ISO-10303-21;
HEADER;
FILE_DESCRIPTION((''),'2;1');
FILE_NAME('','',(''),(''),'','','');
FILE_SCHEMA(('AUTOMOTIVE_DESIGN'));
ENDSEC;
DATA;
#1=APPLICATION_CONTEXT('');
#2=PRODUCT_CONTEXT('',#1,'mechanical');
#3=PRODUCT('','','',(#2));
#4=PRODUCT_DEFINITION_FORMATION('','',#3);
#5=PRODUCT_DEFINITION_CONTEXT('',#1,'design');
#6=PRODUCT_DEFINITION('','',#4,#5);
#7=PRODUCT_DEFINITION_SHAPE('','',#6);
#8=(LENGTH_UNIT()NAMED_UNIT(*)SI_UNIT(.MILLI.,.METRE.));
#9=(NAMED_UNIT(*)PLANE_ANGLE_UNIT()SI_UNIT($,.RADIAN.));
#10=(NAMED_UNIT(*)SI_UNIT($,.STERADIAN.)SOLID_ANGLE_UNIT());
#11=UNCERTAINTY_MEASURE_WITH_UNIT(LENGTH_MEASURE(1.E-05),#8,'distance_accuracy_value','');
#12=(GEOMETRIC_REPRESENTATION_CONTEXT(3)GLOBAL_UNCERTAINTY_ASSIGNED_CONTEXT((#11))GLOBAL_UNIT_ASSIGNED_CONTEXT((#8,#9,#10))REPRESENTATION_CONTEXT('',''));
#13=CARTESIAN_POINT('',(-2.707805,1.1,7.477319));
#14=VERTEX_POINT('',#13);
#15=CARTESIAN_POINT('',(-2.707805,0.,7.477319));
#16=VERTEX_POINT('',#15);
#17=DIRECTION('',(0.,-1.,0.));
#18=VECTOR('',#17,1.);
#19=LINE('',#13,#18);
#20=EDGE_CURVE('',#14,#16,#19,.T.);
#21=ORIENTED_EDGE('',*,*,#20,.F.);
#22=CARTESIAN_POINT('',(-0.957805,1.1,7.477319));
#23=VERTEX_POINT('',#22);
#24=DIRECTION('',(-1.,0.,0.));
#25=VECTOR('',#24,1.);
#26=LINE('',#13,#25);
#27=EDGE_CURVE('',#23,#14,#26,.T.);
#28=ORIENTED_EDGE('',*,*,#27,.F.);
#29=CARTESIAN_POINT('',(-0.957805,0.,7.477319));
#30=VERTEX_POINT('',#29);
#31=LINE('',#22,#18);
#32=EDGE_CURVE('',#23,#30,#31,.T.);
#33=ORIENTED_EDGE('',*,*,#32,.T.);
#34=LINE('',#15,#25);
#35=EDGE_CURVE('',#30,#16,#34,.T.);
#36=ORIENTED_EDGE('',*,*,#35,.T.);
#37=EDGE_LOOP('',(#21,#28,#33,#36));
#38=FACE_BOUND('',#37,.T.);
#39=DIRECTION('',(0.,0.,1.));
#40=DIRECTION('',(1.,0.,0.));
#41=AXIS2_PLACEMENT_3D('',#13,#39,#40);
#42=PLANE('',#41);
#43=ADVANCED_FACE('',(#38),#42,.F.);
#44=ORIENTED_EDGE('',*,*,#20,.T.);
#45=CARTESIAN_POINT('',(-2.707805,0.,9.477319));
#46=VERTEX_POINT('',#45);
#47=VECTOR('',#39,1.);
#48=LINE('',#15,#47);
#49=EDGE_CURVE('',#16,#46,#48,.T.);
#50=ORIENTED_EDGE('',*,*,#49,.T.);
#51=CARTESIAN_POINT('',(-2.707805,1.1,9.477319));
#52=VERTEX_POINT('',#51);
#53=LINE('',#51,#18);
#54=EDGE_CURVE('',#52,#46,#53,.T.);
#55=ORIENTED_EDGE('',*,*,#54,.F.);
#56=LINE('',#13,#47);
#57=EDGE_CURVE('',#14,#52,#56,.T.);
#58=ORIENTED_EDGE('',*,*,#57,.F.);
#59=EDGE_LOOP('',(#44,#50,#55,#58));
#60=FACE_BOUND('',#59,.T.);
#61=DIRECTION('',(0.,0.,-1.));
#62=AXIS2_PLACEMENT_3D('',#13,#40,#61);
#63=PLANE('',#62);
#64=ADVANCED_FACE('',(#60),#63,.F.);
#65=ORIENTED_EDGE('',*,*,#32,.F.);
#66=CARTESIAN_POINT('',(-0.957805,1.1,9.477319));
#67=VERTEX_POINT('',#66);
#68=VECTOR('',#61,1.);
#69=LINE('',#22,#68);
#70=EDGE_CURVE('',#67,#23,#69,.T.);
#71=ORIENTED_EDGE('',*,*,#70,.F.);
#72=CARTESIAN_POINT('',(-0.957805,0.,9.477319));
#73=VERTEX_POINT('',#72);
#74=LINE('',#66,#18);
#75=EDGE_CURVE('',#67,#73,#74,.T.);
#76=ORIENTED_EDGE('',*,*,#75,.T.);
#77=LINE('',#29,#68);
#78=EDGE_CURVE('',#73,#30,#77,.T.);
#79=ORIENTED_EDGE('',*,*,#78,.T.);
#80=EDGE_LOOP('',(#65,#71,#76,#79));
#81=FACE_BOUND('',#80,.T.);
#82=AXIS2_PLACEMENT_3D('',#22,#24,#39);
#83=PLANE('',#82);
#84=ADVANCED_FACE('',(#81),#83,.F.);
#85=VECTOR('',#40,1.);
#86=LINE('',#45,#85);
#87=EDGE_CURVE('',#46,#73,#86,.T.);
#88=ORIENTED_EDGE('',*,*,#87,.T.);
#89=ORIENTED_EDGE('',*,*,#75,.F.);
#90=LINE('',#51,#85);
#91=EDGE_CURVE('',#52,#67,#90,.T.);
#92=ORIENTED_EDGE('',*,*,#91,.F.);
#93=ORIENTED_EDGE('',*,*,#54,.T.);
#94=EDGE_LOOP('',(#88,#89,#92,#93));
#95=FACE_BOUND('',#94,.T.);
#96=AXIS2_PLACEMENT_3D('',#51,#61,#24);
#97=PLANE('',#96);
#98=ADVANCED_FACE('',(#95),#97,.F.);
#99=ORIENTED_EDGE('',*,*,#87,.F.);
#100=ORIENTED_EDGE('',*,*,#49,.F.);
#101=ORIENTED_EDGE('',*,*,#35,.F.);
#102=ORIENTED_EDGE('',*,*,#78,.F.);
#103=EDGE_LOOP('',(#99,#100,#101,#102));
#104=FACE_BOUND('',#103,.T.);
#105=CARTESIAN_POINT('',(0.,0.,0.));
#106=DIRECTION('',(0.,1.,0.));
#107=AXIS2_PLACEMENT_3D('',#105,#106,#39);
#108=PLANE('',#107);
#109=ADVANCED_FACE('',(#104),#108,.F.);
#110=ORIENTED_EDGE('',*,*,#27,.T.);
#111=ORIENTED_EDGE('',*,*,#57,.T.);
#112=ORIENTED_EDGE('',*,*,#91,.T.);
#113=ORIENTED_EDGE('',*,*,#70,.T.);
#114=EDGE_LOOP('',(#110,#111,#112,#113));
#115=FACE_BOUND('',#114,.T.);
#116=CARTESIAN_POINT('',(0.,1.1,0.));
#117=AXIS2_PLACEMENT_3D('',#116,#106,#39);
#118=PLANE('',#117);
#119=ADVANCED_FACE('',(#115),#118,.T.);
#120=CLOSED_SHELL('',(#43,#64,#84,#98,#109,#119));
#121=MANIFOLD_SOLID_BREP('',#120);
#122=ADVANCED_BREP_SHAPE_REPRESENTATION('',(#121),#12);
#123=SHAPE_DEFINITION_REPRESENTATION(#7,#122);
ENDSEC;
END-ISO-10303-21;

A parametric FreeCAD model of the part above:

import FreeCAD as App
import Part
import Sketcher

V = App.Vector


def add_polygon(sketch, points):
    """Adds a closed chain of lines whose ends are joined by coincident constraints."""
    first, n = sketch.GeometryCount, len(points)
    for a, b in zip(points, points[1:] + points[:1]):
        sketch.addGeometry(Part.LineSegment(App.Vector(*a, 0), App.Vector(*b, 0)), False)
    for i in range(n):
        sketch.addConstraint(Sketcher.Constraint("Coincident", first + i, 2, first + (i + 1) % n, 1))

doc = App.newDocument("Part")
body = doc.addObject("PartDesign::Body", "Body")

# Sketch on XZ plane
sketch1 = body.newObject("Sketcher::SketchObject", "Sketch")
sketch1.AttachmentSupport = (doc.getObject("XZ_Plane"), [""])
sketch1.MapMode = "FlatFace"
add_polygon(sketch1, [(-2.7, 7.5), (-2.7, 9.5), (-1, 9.5), (-1, 7.5)])  # lines 0-3
sketch1.addConstraint([
    Sketcher.Constraint("Vertical", 0),
    Sketcher.Constraint("Horizontal", 1),
    Sketcher.Constraint("Vertical", 2),
    Sketcher.Constraint("Horizontal", 3),
    Sketcher.Constraint("DistanceY", 0, 1, 0, 2, 2.0),
    Sketcher.Constraint("DistanceX", 1, 1, 1, 2, 1.75),
    Sketcher.Constraint("DistanceY", -1, 1, 0, 2, 9.477319),
    Sketcher.Constraint("DistanceX", 0, 2, -1, 1, 2.707805),
])
pad1 = body.newObject("PartDesign::Pad", "Pad")
pad1.Profile = sketch1
pad1.Length = 1.1
pad1.Reversed = True

doc.recompute()
